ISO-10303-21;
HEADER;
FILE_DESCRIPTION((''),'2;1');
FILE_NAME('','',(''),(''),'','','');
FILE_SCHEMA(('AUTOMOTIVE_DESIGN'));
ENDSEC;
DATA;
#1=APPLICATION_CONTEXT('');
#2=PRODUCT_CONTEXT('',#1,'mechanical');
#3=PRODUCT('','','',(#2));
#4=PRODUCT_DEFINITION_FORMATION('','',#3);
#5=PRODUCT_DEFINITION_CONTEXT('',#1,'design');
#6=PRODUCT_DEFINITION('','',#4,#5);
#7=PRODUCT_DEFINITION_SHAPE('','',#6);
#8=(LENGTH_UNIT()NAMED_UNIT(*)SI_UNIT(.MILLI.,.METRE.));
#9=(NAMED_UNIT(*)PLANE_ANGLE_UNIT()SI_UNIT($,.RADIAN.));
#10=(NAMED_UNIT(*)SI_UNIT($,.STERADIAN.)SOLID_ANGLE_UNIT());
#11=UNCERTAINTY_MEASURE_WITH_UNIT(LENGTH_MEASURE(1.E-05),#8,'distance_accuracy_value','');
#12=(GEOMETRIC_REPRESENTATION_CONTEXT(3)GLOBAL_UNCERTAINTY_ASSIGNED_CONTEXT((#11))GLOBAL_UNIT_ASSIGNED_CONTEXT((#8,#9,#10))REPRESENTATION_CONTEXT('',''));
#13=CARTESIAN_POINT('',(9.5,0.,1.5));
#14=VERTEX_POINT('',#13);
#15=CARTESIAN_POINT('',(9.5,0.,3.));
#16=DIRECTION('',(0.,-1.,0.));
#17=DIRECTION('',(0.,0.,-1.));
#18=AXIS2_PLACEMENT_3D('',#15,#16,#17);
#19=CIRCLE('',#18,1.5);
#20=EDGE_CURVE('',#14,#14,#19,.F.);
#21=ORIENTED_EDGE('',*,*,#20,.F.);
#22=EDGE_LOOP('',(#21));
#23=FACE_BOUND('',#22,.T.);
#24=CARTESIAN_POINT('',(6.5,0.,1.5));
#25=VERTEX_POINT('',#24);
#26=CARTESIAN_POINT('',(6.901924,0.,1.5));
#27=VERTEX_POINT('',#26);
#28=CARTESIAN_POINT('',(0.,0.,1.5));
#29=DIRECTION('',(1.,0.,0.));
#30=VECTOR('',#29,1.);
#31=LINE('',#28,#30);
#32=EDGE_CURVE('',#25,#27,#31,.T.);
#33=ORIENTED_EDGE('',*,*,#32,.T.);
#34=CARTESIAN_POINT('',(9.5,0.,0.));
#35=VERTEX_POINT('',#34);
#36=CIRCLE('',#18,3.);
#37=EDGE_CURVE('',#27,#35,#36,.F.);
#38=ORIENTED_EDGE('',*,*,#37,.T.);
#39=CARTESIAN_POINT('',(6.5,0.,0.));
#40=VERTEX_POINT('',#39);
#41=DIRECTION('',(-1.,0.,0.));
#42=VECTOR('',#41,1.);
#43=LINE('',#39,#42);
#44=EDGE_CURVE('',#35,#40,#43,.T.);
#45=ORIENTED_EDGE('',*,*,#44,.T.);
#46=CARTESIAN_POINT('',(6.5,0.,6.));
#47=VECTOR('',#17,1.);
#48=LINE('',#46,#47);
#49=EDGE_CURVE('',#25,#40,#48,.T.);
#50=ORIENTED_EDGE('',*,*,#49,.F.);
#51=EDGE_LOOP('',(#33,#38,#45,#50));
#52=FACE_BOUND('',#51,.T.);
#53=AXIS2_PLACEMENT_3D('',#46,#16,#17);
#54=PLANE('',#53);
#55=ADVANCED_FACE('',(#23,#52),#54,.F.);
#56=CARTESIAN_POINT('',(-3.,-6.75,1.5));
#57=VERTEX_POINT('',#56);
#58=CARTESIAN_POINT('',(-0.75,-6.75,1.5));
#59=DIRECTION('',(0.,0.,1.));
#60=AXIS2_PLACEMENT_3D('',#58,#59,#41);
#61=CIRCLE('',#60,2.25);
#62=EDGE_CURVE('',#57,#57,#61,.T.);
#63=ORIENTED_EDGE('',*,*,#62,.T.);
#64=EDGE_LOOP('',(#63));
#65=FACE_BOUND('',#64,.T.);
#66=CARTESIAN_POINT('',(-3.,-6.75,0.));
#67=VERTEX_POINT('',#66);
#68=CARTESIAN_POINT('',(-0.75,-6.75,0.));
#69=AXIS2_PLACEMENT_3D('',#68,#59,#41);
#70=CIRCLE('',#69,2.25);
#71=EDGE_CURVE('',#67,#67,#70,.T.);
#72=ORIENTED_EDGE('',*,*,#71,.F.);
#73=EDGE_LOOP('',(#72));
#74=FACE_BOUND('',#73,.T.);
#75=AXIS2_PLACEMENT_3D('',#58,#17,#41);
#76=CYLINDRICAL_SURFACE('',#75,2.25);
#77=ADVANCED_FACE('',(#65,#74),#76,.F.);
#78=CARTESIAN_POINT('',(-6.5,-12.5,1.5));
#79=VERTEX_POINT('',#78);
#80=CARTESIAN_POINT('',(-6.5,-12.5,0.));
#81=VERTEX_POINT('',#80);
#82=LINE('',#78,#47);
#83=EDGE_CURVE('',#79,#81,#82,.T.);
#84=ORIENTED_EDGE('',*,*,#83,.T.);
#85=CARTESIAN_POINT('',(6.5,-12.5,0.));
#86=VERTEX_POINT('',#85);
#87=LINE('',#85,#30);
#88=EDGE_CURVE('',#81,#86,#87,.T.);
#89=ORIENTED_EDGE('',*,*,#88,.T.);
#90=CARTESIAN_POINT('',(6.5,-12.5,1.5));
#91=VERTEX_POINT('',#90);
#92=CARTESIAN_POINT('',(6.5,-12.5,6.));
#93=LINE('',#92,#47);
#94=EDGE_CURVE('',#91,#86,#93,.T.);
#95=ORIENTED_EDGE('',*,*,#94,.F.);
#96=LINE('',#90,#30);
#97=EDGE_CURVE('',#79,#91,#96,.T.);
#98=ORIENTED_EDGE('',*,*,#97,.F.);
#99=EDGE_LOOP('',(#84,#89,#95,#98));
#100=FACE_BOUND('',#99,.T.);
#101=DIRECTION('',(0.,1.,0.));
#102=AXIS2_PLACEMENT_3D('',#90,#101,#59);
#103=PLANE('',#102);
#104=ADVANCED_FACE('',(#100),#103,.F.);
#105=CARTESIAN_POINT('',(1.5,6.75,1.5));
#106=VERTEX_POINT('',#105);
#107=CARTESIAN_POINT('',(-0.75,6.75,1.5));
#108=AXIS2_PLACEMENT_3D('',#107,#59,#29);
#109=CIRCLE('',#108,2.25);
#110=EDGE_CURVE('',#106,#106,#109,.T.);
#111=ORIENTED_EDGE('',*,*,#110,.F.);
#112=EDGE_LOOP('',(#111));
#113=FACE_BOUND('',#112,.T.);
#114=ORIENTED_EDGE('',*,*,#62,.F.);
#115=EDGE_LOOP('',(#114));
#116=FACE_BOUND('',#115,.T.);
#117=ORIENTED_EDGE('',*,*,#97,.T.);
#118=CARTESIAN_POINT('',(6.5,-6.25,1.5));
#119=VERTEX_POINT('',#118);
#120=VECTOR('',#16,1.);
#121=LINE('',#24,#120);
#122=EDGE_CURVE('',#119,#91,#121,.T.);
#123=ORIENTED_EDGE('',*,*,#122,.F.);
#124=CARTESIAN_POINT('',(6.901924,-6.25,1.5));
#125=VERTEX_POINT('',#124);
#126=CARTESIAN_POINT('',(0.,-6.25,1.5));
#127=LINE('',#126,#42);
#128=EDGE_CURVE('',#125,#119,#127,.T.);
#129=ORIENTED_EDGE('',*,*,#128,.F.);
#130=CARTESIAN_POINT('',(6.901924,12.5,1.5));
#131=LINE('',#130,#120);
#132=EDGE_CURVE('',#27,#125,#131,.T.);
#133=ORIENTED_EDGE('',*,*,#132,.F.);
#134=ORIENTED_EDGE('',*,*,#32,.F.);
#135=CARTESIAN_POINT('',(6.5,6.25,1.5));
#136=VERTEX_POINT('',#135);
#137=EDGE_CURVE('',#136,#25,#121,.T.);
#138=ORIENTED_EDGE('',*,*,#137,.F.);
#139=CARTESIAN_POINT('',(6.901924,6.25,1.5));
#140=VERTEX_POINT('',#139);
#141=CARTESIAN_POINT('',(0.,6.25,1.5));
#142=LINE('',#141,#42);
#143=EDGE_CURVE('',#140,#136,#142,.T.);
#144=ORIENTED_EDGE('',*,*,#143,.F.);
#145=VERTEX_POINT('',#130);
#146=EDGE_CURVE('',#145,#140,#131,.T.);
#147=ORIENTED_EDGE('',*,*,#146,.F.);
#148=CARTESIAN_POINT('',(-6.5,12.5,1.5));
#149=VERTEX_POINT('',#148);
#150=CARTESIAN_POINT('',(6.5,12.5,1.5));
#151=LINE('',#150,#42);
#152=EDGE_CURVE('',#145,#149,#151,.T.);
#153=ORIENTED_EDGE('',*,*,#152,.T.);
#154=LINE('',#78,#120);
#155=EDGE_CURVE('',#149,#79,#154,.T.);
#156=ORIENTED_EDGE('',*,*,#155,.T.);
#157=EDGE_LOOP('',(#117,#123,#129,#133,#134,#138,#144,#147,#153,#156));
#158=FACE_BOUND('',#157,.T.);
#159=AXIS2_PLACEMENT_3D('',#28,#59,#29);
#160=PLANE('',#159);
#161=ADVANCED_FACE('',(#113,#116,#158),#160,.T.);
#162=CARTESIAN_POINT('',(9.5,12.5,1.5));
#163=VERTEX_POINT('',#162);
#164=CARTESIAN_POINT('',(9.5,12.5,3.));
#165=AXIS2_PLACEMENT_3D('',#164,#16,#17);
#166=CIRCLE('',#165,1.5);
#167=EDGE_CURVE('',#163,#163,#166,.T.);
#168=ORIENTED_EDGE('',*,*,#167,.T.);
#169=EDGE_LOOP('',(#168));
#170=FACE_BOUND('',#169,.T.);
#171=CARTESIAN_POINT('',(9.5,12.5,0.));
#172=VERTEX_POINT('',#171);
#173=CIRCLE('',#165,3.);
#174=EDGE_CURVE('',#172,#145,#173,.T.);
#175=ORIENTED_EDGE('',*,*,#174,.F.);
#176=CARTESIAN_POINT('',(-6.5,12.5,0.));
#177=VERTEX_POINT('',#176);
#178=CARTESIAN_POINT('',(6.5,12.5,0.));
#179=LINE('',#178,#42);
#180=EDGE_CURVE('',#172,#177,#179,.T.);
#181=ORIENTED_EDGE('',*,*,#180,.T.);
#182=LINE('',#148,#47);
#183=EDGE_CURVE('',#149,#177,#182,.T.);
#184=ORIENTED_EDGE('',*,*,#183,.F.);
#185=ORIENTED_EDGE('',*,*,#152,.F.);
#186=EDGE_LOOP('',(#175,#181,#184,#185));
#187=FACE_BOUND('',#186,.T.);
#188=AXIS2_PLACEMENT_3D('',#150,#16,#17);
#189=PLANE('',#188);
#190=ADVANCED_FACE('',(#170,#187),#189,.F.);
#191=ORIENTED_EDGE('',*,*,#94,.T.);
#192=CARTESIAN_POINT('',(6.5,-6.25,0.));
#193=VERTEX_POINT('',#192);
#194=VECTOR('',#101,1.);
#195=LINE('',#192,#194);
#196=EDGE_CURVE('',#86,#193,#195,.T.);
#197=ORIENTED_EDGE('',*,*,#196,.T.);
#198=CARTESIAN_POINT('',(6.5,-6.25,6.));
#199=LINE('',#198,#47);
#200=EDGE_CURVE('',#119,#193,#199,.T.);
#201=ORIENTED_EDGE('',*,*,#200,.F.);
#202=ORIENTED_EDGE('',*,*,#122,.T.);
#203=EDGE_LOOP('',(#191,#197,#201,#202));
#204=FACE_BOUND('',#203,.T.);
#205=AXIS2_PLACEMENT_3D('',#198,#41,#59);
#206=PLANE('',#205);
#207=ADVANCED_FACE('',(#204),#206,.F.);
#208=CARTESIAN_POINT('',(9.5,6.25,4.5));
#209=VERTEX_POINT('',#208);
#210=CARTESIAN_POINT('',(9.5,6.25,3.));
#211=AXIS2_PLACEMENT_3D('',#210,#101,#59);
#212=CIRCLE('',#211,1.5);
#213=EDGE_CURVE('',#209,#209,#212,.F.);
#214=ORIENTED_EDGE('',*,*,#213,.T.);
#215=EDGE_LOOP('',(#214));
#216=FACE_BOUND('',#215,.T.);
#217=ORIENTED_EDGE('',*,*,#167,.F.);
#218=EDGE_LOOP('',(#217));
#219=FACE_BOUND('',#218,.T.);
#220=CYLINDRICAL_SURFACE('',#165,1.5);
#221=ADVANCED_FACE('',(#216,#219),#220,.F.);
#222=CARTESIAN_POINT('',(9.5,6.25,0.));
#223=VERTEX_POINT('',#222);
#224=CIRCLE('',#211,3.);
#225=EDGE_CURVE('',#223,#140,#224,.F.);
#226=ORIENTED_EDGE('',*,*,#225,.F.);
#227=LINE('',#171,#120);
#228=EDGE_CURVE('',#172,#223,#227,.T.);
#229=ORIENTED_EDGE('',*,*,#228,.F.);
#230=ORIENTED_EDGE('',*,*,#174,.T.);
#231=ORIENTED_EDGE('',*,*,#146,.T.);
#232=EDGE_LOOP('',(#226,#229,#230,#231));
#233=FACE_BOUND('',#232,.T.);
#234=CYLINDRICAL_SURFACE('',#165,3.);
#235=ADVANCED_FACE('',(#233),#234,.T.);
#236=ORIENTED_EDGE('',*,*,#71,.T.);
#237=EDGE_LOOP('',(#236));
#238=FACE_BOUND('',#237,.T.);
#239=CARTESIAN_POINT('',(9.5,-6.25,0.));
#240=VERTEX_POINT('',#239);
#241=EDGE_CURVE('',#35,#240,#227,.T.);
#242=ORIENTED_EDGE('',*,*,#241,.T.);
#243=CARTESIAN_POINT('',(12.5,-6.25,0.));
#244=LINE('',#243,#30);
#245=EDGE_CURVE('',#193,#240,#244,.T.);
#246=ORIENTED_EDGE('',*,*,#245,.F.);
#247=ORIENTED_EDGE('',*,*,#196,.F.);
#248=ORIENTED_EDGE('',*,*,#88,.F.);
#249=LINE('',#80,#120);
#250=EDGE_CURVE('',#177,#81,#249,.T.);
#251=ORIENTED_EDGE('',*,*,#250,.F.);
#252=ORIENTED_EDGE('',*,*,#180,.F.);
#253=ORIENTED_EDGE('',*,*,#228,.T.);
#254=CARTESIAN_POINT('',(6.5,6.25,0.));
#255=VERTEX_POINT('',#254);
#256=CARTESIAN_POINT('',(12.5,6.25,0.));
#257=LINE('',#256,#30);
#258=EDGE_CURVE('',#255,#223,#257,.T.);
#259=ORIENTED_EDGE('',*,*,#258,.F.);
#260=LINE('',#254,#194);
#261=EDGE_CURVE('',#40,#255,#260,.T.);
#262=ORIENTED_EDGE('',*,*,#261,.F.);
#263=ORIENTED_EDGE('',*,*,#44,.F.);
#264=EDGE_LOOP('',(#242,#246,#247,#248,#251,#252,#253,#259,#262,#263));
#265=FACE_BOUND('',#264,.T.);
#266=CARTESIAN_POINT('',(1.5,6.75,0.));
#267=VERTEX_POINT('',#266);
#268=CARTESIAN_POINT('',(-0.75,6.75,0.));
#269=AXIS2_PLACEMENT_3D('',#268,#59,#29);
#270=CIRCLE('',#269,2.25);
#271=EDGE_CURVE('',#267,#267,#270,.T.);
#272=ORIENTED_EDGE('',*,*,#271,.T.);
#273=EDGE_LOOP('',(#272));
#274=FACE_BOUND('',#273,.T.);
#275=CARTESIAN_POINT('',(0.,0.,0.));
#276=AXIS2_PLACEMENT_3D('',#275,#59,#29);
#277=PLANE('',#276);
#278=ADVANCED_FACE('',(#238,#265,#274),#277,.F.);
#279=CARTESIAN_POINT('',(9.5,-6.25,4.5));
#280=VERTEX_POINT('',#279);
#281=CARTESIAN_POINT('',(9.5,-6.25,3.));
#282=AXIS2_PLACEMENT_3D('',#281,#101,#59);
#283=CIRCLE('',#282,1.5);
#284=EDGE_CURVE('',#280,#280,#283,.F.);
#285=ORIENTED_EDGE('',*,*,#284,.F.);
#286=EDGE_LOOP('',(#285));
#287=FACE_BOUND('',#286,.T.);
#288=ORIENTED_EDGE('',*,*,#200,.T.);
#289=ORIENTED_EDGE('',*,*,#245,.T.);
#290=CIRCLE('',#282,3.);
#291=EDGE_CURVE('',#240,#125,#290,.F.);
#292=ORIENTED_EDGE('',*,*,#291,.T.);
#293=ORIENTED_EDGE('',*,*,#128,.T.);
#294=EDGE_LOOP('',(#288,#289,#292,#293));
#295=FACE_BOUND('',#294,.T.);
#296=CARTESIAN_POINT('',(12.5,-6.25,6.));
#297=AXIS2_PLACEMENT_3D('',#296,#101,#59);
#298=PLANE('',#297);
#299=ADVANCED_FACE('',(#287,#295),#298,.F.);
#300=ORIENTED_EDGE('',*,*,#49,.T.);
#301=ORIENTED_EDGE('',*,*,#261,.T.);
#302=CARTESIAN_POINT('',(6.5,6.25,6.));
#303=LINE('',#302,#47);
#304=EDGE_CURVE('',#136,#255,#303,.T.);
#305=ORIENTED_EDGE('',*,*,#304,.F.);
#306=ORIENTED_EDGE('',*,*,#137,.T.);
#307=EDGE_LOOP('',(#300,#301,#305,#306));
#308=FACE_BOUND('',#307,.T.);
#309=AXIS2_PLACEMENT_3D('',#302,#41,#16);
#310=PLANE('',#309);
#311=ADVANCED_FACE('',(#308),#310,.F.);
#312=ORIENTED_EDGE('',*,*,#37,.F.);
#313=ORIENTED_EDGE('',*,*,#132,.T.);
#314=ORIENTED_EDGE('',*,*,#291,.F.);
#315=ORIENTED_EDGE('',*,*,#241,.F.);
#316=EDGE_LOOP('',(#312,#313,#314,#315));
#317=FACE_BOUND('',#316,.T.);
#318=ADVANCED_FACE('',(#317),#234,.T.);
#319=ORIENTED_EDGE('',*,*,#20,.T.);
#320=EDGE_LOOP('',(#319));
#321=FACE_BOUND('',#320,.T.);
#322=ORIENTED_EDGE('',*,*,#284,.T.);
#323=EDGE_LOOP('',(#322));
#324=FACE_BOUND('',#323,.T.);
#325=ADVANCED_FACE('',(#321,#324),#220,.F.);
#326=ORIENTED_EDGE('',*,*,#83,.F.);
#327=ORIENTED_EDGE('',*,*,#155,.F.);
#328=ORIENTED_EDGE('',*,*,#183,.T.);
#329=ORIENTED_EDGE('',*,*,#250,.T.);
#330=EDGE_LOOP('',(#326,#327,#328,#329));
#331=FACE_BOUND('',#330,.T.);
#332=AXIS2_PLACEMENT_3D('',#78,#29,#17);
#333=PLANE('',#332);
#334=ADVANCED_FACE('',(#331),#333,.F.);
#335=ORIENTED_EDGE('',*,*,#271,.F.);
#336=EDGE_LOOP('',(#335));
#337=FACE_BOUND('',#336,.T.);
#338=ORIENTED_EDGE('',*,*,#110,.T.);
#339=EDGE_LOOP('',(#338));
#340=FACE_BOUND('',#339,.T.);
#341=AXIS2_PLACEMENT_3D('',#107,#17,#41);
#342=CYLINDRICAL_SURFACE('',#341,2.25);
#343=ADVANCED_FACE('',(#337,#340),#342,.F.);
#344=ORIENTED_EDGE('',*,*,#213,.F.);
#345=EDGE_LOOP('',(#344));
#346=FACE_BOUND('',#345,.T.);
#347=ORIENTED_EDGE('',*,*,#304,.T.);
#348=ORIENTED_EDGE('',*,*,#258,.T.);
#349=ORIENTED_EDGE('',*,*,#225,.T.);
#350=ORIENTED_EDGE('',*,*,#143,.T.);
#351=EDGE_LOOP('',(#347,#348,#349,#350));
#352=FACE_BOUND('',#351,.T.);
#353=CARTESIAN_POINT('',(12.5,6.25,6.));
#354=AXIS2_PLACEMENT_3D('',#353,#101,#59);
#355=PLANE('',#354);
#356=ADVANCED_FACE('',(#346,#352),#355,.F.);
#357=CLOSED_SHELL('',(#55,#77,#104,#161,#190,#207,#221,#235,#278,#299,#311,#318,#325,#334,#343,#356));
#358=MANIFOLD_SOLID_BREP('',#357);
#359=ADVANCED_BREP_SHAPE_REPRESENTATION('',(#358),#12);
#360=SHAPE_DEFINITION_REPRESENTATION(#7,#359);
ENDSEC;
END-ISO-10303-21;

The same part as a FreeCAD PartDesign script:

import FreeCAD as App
import Part
import Sketcher

doc = App.newDocument("Part")
params = doc.addObject("Spreadsheet::Sheet", "Params")
for row, (alias, value) in enumerate([
    ("sketch1_diameter", "4.5 mm"),
    ("sketch1_width", "13 mm"),
    ("sketch1_height", "25 mm"),
    ("pad1_length", "1.5 mm"),
    ("sketch2_diameter", "6 mm"),
    ("sketch2_diameter2", "3 mm"),
    ("pad2_length", "25 mm"),
    ("sketch3_width", "3 mm"),
    ("sketch3_height", "25 mm"),
    ("pad3_length", "1.5 mm"),
    ("sketch4_width", "6 mm"),
    ("sketch4_height", "6.25 mm"),
], start=1):
    params.set(f"A{row}", alias)
    params.set(f"B{row}", "=" + value)
    params.setAlias(f"B{row}", alias)

body = doc.addObject("PartDesign::Body", "Body")

# Sketch on XY plane
sketch1 = body.newObject("Sketcher::SketchObject", "Sketch")
sketch1.AttachmentSupport = (doc.getObject("XY_Plane"), [""])
sketch1.MapMode = "FlatFace"
sketch1.addGeometry([
    Part.LineSegment(App.Vector(-6.5, 12.5, 0), App.Vector(-6.5, -12.5, 0)),  # 0
    Part.LineSegment(App.Vector(-6.5, -12.5, 0), App.Vector(6.5, -12.5, 0)),  # 1
    Part.LineSegment(App.Vector(6.5, -12.5, 0), App.Vector(6.5, 12.5, 0)),  # 2
    Part.LineSegment(App.Vector(6.5, 12.5, 0), App.Vector(-6.5, 12.5, 0)),  # 3
    Part.Circle(App.Vector(-0.8, -6.8, 0), App.Vector(0, 0, 1), 2.2),  # 4
    Part.Circle(App.Vector(-0.8, 6.8, 0), App.Vector(0, 0, 1), 2.2),  # 5
], False)
sketch1.addConstraint([
    Sketcher.Constraint("Coincident", 0, 2, 1, 1),
    Sketcher.Constraint("Coincident", 1, 2, 2, 1),
    Sketcher.Constraint("Coincident", 2, 2, 3, 1),
    Sketcher.Constraint("Coincident", 3, 2, 0, 1),
    Sketcher.Constraint("Vertical", 0),
    Sketcher.Constraint("Horizontal", 1),
    Sketcher.Constraint("Vertical", 2),
    Sketcher.Constraint("Horizontal", 3),
    Sketcher.Constraint("Equal", 4, 5),
    Sketcher.Constraint("Symmetric", 0, 2, 2, 2, -1, 1),
    Sketcher.Constraint("Symmetric", 4, 3, 5, 3, -1),
    Sketcher.Constraint("Diameter", 4, 4.5),
    Sketcher.Constraint("DistanceX", 1, 1, 1, 2, 13.0),
    Sketcher.Constraint("DistanceY", 0, 2, 0, 1, 25.0),
    Sketcher.Constraint("DistanceY", 4, 3, 5, 3, 13.5),
    Sketcher.Constraint("DistanceX", 4, 3, -1, 1, 0.75),
])
sketch1.setExpression("Constraints[11]", "Params.sketch1_diameter")
sketch1.setExpression("Constraints[12]", "Params.sketch1_width")
sketch1.setExpression("Constraints[13]", "Params.sketch1_height")
pad1 = body.newObject("PartDesign::Pad", "Pad")
pad1.Profile = sketch1
pad1.setExpression("Length", "Params.pad1_length")
body2 = doc.addObject("PartDesign::Body", "Body001")

# Sketch on XZ plane
sketch2 = body2.newObject("Sketcher::SketchObject", "Sketch001")
sketch2.AttachmentSupport = (doc.getObject("XZ_Plane001"), [""])
sketch2.MapMode = "FlatFace"
sketch2.AttachmentOffset = App.Placement(App.Vector(0, 0, 12.5), App.Rotation())
sketch2.addGeometry([
    Part.Circle(App.Vector(9.5, 3, 0), App.Vector(0, 0, 1), 3),
    Part.Circle(App.Vector(9.5, 3, 0), App.Vector(0, 0, 1), 1.5),
], False)
sketch2.addConstraint([
    Sketcher.Constraint("Coincident", 1, 3, 0, 3),
    Sketcher.Constraint("Diameter", 0, 6.0),
    Sketcher.Constraint("Diameter", 1, 3.0),
    Sketcher.Constraint("DistanceY", -1, 1, 0, 3, 3.0),
    Sketcher.Constraint("DistanceX", -1, 1, 0, 3, 9.5),
])
sketch2.setExpression("Constraints[1]", "Params.sketch2_diameter")
sketch2.setExpression("Constraints[2]", "Params.sketch2_diameter2")
pad2 = body2.newObject("PartDesign::Pad", "Pad001")
pad2.Profile = sketch2
pad2.setExpression("Length", "Params.pad2_length")
pad2.Reversed = True
body.AllowCompound = True
doc.recompute()

boolean = body.newObject("PartDesign::Boolean", "Boolean")
boolean.Type = "Fuse"
boolean.addObjects([body2])

# Sketch on XY plane
sketch3 = body.newObject("Sketcher::SketchObject", "Sketch002")
sketch3.AttachmentSupport = (doc.getObject("XY_Plane"), [""])
sketch3.MapMode = "FlatFace"
sketch3.addGeometry([
    Part.LineSegment(App.Vector(9.5, 12.5, 0), App.Vector(9.5, -12.5, 0)),
    Part.LineSegment(App.Vector(9.5, -12.5, 0), App.Vector(6.5, -12.5, 0)),
    Part.LineSegment(App.Vector(6.5, -12.5, 0), App.Vector(6.5, 12.5, 0)),
    Part.LineSegment(App.Vector(6.5, 12.5, 0), App.Vector(9.5, 12.5, 0)),
], False)
sketch3.addConstraint([
    Sketcher.Constraint("Coincident", 0, 2, 1, 1),
    Sketcher.Constraint("Coincident", 1, 2, 2, 1),
    Sketcher.Constraint("Coincident", 2, 2, 3, 1),
    Sketcher.Constraint("Coincident", 3, 2, 0, 1),
    Sketcher.Constraint("Vertical", 0),
    Sketcher.Constraint("Horizontal", 1),
    Sketcher.Constraint("Vertical", 2),
    Sketcher.Constraint("Horizontal", 3),
    Sketcher.Constraint("DistanceX", 1, 2, 1, 1, 3.0),
    Sketcher.Constraint("DistanceY", 0, 2, 0, 1, 25.0),
    Sketcher.Constraint("DistanceX", -1, 1, 0, 2, 9.5),
    Sketcher.Constraint("DistanceY", 0, 2, -1, 1, 12.5),
])
sketch3.setExpression("Constraints[8]", "Params.sketch3_width")
sketch3.setExpression("Constraints[9]", "Params.sketch3_height")
pad3 = body.newObject("PartDesign::Pad", "Pad002")
pad3.Profile = sketch3
pad3.setExpression("Length", "Params.pad3_length")

# Sketch on XY plane
sketch4 = body.newObject("Sketcher::SketchObject", "Sketch003")
sketch4.AttachmentSupport = (doc.getObject("XY_Plane"), [""])
sketch4.MapMode = "FlatFace"
sketch4.addGeometry([
    Part.LineSegment(App.Vector(12, -6, 0), App.Vector(12, -12, 0)),  # 0
    Part.LineSegment(App.Vector(12, -12, 0), App.Vector(6, -12, 0)),  # 1
    Part.LineSegment(App.Vector(6, -12, 0), App.Vector(6, -6, 0)),  # 2
    Part.LineSegment(App.Vector(6, -6, 0), App.Vector(12, -6, 0)),  # 3
    Part.LineSegment(App.Vector(12, 6, 0), App.Vector(12, 0, 0)),  # 4
    Part.LineSegment(App.Vector(12, 0, 0), App.Vector(6, 0, 0)),  # 5
    Part.LineSegment(App.Vector(6, 0, 0), App.Vector(6, 6, 0)),  # 6
    Part.LineSegment(App.Vector(6, 6, 0), App.Vector(12, 6, 0)),  # 7
], False)
sketch4.addConstraint([
    Sketcher.Constraint("Coincident", 0, 2, 1, 1),
    Sketcher.Constraint("Coincident", 1, 2, 2, 1),
    Sketcher.Constraint("Coincident", 2, 2, 3, 1),
    Sketcher.Constraint("Coincident", 3, 2, 0, 1),
    Sketcher.Constraint("Coincident", 4, 2, 5, 1),
    Sketcher.Constraint("Coincident", 5, 2, 6, 1),
    Sketcher.Constraint("Coincident", 6, 2, 7, 1),
    Sketcher.Constraint("Coincident", 7, 2, 4, 1),
    Sketcher.Constraint("Vertical", 0),
    Sketcher.Constraint("Horizontal", 1),
    Sketcher.Constraint("Vertical", 2),
    Sketcher.Constraint("Horizontal", 3),
    Sketcher.Constraint("Vertical", 4),
    Sketcher.Constraint("Horizontal", 5),
    Sketcher.Constraint("Vertical", 6),
    Sketcher.Constraint("Horizontal", 7),
    Sketcher.Constraint("Symmetric", 2, 2, 6, 2, -1),
    Sketcher.Constraint("PointOnObject", 4, 2, -1),
    Sketcher.Constraint("Vertical", 3, 2, 4, 2),
    Sketcher.Constraint("Equal", 2, 4),
    Sketcher.Constraint("DistanceX", 1, 2, 1, 1, 6.0),
    Sketcher.Constraint("DistanceY", 0, 2, 0, 1, 6.25),
    Sketcher.Constraint("DistanceX", -1, 1, 0, 2, 12.5),
])
sketch4.setExpression("Constraints[20]", "Params.sketch4_width")
sketch4.setExpression("Constraints[21]", "Params.sketch4_height")
pocket1 = body.newObject("PartDesign::Pocket", "Pocket")
pocket1.Profile = sketch4
pocket1.Type = "ThroughAll"
pocket1.Reversed = True

doc.recompute()
